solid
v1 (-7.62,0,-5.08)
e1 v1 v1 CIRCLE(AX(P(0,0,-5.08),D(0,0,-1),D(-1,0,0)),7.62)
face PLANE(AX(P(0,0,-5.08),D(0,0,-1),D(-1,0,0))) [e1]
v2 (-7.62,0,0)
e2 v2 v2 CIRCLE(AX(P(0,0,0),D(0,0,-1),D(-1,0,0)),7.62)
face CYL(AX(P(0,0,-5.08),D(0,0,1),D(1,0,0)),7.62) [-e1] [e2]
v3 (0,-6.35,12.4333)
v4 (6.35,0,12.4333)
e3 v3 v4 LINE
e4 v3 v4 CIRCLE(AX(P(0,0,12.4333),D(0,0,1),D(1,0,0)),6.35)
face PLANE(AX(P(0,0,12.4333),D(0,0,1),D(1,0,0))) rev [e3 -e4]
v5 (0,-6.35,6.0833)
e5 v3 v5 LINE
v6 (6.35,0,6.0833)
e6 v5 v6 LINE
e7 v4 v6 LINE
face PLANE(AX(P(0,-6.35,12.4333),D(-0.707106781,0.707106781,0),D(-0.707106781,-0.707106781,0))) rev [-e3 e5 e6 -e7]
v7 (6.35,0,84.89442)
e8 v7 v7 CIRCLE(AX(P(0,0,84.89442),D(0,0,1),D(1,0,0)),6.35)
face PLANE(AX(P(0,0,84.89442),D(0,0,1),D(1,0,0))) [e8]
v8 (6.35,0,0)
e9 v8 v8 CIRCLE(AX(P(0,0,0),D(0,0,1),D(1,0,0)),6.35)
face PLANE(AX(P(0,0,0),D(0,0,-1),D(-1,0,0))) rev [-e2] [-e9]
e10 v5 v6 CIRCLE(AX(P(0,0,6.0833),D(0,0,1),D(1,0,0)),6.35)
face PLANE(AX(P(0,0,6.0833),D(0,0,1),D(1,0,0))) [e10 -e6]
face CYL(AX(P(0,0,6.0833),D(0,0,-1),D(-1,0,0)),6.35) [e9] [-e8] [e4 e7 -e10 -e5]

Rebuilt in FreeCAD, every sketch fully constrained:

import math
import FreeCAD as App
import Part
import Sketcher
Q = App.Units.Quantity

doc = App.newDocument("Part")
body = doc.addObject("PartDesign::Body", "Body")

# Sketch on XY plane
sketch1 = body.newObject("Sketcher::SketchObject", "Sketch")
sketch1.AttachmentSupport = (doc.getObject("XY_Plane"), [""])
sketch1.MapMode = "FlatFace"
sketch1.addGeometry(Part.Circle(App.Vector(0, 0, 0), App.Vector(0, 0, 1), 6), False)
sketch1.addConstraint([
    Sketcher.Constraint("Coincident", 0, 3, -1, 1),
    Sketcher.Constraint("Diameter", 0, Q("0.5 in")),
])
pad1 = body.newObject("PartDesign::Pad", "Pad")
pad1.Profile = sketch1
pad1.Length = Q("0.2395 in")

# Sketch on XY plane
sketch2 = body.newObject("Sketcher::SketchObject", "Sketch001")
sketch2.AttachmentSupport = (doc.getObject("XY_Plane"), [""])
sketch2.MapMode = "FlatFace"
sketch2.addGeometry(Part.Circle(App.Vector(0, 0, 0), App.Vector(0, 0, 1), 8), False)
sketch2.addConstraint([
    Sketcher.Constraint("Coincident", 0, 3, -1, 1),
    Sketcher.Constraint("Diameter", 0, Q("0.6 in")),
])
pad2 = body.newObject("PartDesign::Pad", "Pad001")
pad2.Profile = sketch2
pad2.Length = Q("0.2 in")
pad2.Reversed = True

# Sketch on XY plane
sketch3 = body.newObject("Sketcher::SketchObject", "Sketch002")
sketch3.AttachmentSupport = (doc.getObject("XY_Plane"), [""])
sketch3.MapMode = "FlatFace"
sketch3.AttachmentOffset = App.Placement(App.Vector(0, 0, 0.2395 * 25.4), App.Rotation())
sketch3.addGeometry([
    Part.LineSegment(App.Vector(0, -6, 0), App.Vector(6, 0, 0)),
    Part.ArcOfCircle(Part.Circle(App.Vector(0, 0, 0), App.Vector(0, 0, 1), 6), math.radians(0), math.radians(270)),
], False)
sketch3.addConstraint([
    Sketcher.Constraint("Coincident", 0, 1, 1, 2),
    Sketcher.Constraint("Coincident", 1, 1, 0, 2),
    Sketcher.Constraint("Coincident", 1, 3, -1, 1),
    Sketcher.Constraint("PointOnObject", 0, 1, -2),
    Sketcher.Constraint("PointOnObject", 1, 1, -1),
    Sketcher.Constraint("Radius", 1, Q("0.25 in")),
])
pad3 = body.newObject("PartDesign::Pad", "Pad002")
pad3.Profile = sketch3
pad3.Length = Q("0.25 in")

# Sketch on XY plane
sketch4 = body.newObject("Sketcher::SketchObject", "Sketch003")
sketch4.AttachmentSupport = (doc.getObject("XY_Plane"), [""])
sketch4.MapMode = "FlatFace"
sketch4.AttachmentOffset = App.Placement(App.Vector(0, 0, 0.4895 * 25.4), App.Rotation())
sketch4.addGeometry(Part.Circle(App.Vector(0, 0, 0), App.Vector(0, 0, 1), 6), False)
sketch4.addConstraint([
    Sketcher.Constraint("Coincident", 0, 3, -1, 1),
    Sketcher.Constraint("Diameter", 0, Q("0.5 in")),
])
pad4 = body.newObject("PartDesign::Pad", "Pad003")
pad4.Profile = sketch4
pad4.Length = Q("2.8528 in")

doc.recompute()
